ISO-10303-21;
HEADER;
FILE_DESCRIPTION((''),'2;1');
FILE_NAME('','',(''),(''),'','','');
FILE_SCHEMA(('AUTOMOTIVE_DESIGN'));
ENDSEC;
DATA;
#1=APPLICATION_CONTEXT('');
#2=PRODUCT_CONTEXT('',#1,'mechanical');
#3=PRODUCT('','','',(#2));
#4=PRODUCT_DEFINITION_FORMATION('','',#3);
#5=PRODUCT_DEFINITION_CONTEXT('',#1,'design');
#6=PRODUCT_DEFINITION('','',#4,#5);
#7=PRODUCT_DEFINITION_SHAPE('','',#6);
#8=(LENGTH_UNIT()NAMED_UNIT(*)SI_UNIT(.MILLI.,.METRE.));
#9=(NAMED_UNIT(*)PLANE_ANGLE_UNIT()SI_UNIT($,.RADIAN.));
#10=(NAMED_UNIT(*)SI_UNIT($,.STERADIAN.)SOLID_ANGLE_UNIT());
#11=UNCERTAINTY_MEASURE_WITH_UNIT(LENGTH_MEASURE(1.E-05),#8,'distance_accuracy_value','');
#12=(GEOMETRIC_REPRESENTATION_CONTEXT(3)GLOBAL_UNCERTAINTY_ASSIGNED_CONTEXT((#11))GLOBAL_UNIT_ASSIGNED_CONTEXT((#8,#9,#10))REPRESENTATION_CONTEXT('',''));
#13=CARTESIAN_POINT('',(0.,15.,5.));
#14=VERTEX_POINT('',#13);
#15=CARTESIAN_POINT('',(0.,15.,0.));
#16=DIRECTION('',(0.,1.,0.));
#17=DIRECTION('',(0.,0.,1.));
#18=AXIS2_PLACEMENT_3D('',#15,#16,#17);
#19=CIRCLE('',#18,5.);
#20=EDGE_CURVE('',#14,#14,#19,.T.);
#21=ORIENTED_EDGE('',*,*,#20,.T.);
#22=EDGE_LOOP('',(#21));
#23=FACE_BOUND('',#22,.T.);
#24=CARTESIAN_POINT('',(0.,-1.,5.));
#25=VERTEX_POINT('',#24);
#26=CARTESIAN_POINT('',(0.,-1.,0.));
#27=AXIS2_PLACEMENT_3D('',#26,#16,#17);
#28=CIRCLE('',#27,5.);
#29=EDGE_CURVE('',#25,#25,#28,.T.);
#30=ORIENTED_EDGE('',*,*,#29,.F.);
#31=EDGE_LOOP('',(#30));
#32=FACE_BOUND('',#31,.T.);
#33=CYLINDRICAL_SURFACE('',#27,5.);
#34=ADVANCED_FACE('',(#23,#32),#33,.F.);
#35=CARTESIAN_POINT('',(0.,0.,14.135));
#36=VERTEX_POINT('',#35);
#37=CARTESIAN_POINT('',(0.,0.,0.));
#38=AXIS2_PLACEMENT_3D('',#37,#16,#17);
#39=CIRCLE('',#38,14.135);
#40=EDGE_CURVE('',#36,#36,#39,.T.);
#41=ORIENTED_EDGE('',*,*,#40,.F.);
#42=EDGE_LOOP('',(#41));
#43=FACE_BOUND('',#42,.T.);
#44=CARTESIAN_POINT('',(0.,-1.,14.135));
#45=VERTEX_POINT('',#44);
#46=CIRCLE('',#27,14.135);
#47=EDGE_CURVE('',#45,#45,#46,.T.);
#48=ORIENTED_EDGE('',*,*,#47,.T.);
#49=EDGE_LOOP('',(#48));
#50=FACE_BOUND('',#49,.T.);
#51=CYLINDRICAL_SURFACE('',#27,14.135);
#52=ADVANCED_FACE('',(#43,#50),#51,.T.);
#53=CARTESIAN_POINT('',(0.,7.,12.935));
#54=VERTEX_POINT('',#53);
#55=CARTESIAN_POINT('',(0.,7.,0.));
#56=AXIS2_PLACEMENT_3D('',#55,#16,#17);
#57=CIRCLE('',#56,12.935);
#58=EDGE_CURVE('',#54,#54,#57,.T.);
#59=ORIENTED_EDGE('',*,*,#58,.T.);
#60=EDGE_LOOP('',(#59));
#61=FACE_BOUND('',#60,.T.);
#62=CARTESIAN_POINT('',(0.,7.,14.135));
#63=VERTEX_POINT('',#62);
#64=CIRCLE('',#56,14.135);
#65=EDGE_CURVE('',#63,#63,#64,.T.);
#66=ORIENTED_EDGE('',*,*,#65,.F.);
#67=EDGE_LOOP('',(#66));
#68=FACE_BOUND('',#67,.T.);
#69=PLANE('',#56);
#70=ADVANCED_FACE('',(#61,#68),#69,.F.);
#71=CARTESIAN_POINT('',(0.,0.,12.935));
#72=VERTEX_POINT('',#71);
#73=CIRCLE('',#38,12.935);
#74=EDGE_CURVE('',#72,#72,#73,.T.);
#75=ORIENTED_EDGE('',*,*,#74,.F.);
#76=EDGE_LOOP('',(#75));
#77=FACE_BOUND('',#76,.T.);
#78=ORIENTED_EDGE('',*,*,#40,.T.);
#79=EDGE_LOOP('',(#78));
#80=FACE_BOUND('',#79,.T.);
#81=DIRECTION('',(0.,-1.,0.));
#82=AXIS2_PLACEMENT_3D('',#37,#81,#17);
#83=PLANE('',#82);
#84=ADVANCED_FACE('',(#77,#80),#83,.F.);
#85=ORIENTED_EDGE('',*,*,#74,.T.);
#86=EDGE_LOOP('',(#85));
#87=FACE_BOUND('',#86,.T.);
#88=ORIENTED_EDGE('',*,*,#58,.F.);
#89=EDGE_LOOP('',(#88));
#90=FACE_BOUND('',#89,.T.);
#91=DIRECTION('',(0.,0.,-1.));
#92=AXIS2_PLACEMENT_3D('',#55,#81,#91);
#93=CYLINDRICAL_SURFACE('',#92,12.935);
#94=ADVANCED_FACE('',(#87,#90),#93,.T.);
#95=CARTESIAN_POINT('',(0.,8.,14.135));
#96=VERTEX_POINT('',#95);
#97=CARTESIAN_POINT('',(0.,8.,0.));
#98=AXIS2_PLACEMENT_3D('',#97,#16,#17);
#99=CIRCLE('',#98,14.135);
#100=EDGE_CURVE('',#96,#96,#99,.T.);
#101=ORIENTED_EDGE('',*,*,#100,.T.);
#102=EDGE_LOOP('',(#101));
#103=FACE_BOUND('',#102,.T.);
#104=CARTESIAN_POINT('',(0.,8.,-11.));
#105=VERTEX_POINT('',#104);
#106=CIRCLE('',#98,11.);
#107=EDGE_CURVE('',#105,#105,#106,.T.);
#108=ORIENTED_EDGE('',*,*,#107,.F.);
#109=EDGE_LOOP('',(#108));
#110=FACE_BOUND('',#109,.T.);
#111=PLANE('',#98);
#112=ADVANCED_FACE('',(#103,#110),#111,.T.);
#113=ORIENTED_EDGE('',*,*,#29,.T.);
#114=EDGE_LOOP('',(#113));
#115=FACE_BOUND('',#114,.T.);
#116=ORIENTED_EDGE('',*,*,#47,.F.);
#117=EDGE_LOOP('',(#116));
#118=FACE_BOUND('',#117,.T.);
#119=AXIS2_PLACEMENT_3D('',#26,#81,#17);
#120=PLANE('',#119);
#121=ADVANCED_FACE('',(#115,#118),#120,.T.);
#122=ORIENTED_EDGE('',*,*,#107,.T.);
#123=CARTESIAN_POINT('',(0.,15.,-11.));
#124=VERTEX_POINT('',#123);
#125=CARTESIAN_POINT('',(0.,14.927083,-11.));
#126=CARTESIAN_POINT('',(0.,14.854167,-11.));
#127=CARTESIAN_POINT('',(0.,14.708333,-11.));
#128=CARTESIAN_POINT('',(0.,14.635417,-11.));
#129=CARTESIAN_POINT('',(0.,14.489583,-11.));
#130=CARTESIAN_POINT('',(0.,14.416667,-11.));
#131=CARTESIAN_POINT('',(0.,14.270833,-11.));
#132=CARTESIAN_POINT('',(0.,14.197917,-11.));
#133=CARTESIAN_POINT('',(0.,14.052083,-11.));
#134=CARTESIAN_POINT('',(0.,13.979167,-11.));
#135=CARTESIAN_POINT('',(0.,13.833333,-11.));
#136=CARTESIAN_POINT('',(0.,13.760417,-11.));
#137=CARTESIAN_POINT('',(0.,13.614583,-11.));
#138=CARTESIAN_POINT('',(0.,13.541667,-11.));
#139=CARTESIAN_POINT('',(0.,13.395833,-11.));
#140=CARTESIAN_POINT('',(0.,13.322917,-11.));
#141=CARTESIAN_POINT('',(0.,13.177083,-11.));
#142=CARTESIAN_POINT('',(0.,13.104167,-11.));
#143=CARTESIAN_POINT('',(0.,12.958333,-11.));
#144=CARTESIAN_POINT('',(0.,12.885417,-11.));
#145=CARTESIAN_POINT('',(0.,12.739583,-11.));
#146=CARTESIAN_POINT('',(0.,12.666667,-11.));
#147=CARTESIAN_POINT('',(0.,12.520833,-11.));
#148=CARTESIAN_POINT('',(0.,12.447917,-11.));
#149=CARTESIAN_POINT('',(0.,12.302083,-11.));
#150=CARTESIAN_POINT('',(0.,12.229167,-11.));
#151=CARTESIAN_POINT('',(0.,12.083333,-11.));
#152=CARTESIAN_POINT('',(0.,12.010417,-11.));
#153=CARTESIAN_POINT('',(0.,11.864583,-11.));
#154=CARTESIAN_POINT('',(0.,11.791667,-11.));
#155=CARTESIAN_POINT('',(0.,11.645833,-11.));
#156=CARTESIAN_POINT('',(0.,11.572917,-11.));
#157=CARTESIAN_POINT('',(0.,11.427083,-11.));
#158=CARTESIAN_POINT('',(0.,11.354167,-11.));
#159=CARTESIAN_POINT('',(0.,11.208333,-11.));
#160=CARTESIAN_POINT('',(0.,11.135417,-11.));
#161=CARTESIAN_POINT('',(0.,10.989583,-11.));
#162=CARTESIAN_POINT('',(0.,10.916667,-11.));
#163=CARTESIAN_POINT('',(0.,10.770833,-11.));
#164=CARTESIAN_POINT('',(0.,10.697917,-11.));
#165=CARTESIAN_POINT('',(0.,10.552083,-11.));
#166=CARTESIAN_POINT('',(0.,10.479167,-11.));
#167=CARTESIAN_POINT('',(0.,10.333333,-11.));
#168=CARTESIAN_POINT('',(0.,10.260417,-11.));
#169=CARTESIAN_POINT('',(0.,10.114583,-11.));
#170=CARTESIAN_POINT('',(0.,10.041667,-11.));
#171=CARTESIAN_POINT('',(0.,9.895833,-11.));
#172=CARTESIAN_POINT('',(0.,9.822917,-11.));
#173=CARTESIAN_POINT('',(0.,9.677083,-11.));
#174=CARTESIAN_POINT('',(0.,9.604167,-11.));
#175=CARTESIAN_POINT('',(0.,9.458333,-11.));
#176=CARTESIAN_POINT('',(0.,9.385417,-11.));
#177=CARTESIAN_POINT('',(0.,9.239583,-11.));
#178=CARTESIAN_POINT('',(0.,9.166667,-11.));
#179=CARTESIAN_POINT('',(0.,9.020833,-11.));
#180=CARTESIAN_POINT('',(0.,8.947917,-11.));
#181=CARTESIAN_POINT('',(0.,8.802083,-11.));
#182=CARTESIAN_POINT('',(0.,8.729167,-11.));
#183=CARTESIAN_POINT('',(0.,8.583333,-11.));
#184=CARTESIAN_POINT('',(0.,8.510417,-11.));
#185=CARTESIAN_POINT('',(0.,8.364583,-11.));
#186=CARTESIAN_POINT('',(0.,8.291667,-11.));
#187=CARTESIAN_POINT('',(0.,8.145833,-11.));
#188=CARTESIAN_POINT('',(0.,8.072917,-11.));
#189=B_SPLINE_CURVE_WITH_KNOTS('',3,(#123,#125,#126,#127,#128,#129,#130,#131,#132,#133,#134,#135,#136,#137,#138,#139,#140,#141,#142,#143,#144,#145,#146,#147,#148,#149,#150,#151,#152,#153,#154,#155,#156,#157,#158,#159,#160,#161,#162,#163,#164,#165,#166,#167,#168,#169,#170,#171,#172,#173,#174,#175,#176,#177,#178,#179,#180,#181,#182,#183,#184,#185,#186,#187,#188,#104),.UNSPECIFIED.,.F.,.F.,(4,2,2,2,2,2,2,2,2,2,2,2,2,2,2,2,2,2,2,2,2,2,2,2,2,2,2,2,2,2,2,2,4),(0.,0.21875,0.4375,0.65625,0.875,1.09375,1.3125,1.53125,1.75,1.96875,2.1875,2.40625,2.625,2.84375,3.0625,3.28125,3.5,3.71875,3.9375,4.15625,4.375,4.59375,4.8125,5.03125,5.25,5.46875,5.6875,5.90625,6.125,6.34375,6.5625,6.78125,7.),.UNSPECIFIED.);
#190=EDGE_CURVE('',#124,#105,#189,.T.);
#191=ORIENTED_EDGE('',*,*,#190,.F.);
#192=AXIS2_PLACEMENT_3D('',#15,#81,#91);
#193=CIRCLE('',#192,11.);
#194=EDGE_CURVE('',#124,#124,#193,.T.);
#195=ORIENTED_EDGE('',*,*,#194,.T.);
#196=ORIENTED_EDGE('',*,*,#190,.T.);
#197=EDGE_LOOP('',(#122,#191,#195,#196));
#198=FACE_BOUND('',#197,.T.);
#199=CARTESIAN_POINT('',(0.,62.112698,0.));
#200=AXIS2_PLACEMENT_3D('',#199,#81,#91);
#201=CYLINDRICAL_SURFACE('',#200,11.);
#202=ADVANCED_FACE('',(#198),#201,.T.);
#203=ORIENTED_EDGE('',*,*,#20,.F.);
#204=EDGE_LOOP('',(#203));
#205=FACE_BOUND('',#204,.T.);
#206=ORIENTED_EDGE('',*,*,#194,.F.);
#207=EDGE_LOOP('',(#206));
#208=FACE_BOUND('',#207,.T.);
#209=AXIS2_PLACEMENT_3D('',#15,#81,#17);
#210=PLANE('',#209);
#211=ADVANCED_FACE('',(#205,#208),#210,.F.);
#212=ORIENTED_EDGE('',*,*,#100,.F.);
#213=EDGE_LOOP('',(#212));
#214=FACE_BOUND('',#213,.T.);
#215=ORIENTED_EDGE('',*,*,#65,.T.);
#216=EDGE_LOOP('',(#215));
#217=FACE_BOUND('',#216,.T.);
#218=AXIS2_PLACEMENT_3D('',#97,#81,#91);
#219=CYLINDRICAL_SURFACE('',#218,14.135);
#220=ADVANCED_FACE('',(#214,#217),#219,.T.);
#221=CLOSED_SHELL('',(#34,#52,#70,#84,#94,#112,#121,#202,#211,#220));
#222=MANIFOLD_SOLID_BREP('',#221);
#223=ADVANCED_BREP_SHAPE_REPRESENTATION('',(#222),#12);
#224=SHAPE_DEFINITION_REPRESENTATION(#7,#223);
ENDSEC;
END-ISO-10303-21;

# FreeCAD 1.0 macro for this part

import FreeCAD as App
import Part
import Sketcher
from FreeCAD import Vector
Q = App.Units.Quantity

doc = App.newDocument("Part")
body = doc.addObject("PartDesign::Body", "Body")

# Sketch on XZ plane
sketch1 = body.newObject("Sketcher::SketchObject", "Sketch")
sketch1.AttachmentSupport = (doc.getObject("XZ_Plane"), [""])
sketch1.MapMode = "FlatFace"
sketch1.addGeometry(Part.Circle(Vector(0, 0, 0), Vector(0, 0, 1), 12.935), False)
sketch1.addConstraint([
    Sketcher.Constraint("Coincident", 0, 3, -1, 1),
    Sketcher.Constraint("Diameter", 0, Q("25.87 mm")),
])
pad1 = body.newObject("PartDesign::Pad", "Pad")
pad1.Profile = sketch1
pad1.Length = 7
pad1.Reversed = True

# Sketch on XZ plane
sketch2 = body.newObject("Sketcher::SketchObject", "Sketch001")
sketch2.AttachmentSupport = (doc.getObject("XZ_Plane"), [""])
sketch2.MapMode = "FlatFace"
sketch2.AttachmentOffset = App.Placement(Vector(0, 0, -7), App.Rotation())
sketch2.addGeometry(Part.Circle(Vector(0, 0, 0), Vector(0, 0, 1), 14.135), False)
sketch2.addConstraint([
    Sketcher.Constraint("Coincident", 0, 3, -1, 1),
    Sketcher.Constraint("Diameter", 0, Q("28.27 mm")),
])
pad2 = body.newObject("PartDesign::Pad", "Pad001")
pad2.Profile = sketch2
pad2.Length = 1
pad2.Reversed = True
doc.recompute()

datumplane = body.newObject("PartDesign::Plane", "DatumPlane")
datumplane.AttachmentSupport = (doc.getObject("XZ_Plane"), [""])
datumplane.MapMode = "FlatFace"
datumplane.AttachmentOffset = App.Placement(Vector(0, 0, -3.5), App.Rotation())
mirrored = body.newObject("PartDesign::Mirrored", "Mirrored")
mirrored.Originals = [pad2]
mirrored.MirrorPlane = (datumplane, [""])
body.Tip = mirrored

# Sketch on XZ plane
sketch3 = body.newObject("Sketcher::SketchObject", "Sketch002")
sketch3.AttachmentSupport = (doc.getObject("XZ_Plane"), [""])
sketch3.MapMode = "FlatFace"
sketch3.AttachmentOffset = App.Placement(Vector(0, 0, -8), App.Rotation())
sketch3.addGeometry(Part.Circle(Vector(0, 0, 0), Vector(0, 0, 1), 11), False)
sketch3.addConstraint([
    Sketcher.Constraint("Coincident", 0, 3, -1, 1),
    Sketcher.Constraint("Diameter", 0, Q("22 mm")),
])
pad3 = body.newObject("PartDesign::Pad", "Pad002")
pad3.Profile = sketch3
pad3.Length = 7
pad3.Reversed = True

# Sketch on XZ plane
sketch4 = body.newObject("Sketcher::SketchObject", "Sketch003")
sketch4.AttachmentSupport = (doc.getObject("XZ_Plane"), [""])
sketch4.MapMode = "FlatFace"
sketch4.AttachmentOffset = App.Placement(Vector(0, 0, -15), App.Rotation())
sketch4.addGeometry(Part.Circle(Vector(0, 0, 0), Vector(0, 0, 1), 5), False)
sketch4.addConstraint([
    Sketcher.Constraint("Coincident", 0, 3, -1, 1),
    Sketcher.Constraint("Diameter", 0, Q("10 mm")),
])
pocket1 = body.newObject("PartDesign::Pocket", "Pocket")
pocket1.Profile = sketch4
pocket1.Type = "ThroughAll"
pocket1.Reversed = True

doc.recompute()
